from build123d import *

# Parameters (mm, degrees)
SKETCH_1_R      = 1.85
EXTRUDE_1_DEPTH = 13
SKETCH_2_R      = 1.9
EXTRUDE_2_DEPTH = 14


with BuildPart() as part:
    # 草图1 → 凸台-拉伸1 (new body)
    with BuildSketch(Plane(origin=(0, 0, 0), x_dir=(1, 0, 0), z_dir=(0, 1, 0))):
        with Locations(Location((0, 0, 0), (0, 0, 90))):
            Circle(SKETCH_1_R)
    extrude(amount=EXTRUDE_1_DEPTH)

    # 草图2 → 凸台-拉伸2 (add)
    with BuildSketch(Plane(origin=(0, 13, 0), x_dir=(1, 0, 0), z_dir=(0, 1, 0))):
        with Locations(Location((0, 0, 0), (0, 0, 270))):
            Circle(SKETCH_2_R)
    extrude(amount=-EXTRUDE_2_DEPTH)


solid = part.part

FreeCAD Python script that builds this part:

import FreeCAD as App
import Part
import Sketcher

doc = App.newDocument("Part")
body = doc.addObject("PartDesign::Body", "Body")

sketch1 = body.newObject("Sketcher::SketchObject", "Sketch")
sketch1.AttachmentSupport = (doc.getObject("XZ_Plane"), [""])
sketch1.MapMode = "FlatFace"
sketch1.addGeometry(Part.Circle(App.Vector(0, 0, 0), App.Vector(0, 0, 1), 1.9), False)
sketch1.addConstraint([
    Sketcher.Constraint("Coincident", 0, 3, -1, 1),
    Sketcher.Constraint("Diameter", 0, 3.7),
])
pad1 = body.newObject("PartDesign::Pad", "Pad")
pad1.Profile = sketch1
pad1.Length = 13
pad1.Reversed = True

sketch2 = body.newObject("Sketcher::SketchObject", "Sketch001")
sketch2.AttachmentSupport = (doc.getObject("XZ_Plane"), [""])
sketch2.MapMode = "FlatFace"
sketch2.AttachmentOffset = App.Placement(App.Vector(0, 0, -13), App.Rotation())
sketch2.addGeometry(Part.Circle(App.Vector(0, 0, 0), App.Vector(0, 0, 1), 1.9), False)
sketch2.addConstraint([
    Sketcher.Constraint("Coincident", 0, 3, -1, 1),
    Sketcher.Constraint("Diameter", 0, 3.8),
])
pad2 = body.newObject("PartDesign::Pad", "Pad001")
pad2.Profile = sketch2
pad2.Length = 14

doc.recompute()
